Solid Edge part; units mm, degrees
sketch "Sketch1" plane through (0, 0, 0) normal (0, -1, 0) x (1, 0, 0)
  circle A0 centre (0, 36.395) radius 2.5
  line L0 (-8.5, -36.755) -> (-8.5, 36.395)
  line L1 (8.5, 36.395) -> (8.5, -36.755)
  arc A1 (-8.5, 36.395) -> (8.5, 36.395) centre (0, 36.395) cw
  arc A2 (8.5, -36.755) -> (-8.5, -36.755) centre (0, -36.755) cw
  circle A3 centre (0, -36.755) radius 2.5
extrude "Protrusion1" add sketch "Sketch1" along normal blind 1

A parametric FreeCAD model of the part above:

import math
import FreeCAD as App
import Part
import Sketcher

V = App.Vector
Q = App.Units.Quantity

doc = App.newDocument("Part")
body = doc.addObject("PartDesign::Body", "Body")

sketch1 = body.newObject("Sketcher::SketchObject", "Sketch")
sketch1.AttachmentSupport = (doc.getObject("XZ_Plane"), [""])
sketch1.MapMode = "FlatFace"
sketch1.addGeometry([
    Part.LineSegment(V(-8.5, 36.395, 0), V(-8.5, -36.755, 0)),
    Part.ArcOfCircle(Part.Circle(V(0, -36.755, 0), V(0, 0, 1), 8.5), math.radians(180), math.radians(360)),
    Part.LineSegment(V(8.5, -36.755, 0), V(8.5, 36.395, 0)),
    Part.ArcOfCircle(Part.Circle(V(0, 36.395, 0), V(0, 0, 1), 8.5), math.radians(0), math.radians(180)),
    Part.Circle(V(0, -36.755, 0), V(0, 0, 1), 2.5),
    Part.Circle(V(0, 36.395, 0), V(0, 0, 1), 2.5),
], False)
sketch1.addConstraint([
    Sketcher.Constraint("Tangent", 0, 2, 1, 1),
    Sketcher.Constraint("Tangent", 1, 2, 2, 1),
    Sketcher.Constraint("Tangent", 2, 2, 3, 1),
    Sketcher.Constraint("Tangent", 3, 2, 0, 1),
    Sketcher.Constraint("Vertical", 0),
    Sketcher.Constraint("Vertical", 2),
    Sketcher.Constraint("Coincident", 4, 3, 1, 3),
    Sketcher.Constraint("Coincident", 5, 3, 3, 3),
    Sketcher.Constraint("Equal", 4, 5),
    Sketcher.Constraint("PointOnObject", 1, 3, -2),
    Sketcher.Constraint("Diameter", 4, Q("5 mm")),
    Sketcher.Constraint("Radius", 1, Q("8.5 mm")),
    Sketcher.Constraint("DistanceY", 0, 2, 0, 1, Q("73.15 mm")),
    Sketcher.Constraint("DistanceY", 1, 3, -1, 1, Q("36.755 mm")),
])
pad1 = body.newObject("PartDesign::Pad", "Pad")
pad1.Profile = sketch1
pad1.Length = 1

doc.recompute()
